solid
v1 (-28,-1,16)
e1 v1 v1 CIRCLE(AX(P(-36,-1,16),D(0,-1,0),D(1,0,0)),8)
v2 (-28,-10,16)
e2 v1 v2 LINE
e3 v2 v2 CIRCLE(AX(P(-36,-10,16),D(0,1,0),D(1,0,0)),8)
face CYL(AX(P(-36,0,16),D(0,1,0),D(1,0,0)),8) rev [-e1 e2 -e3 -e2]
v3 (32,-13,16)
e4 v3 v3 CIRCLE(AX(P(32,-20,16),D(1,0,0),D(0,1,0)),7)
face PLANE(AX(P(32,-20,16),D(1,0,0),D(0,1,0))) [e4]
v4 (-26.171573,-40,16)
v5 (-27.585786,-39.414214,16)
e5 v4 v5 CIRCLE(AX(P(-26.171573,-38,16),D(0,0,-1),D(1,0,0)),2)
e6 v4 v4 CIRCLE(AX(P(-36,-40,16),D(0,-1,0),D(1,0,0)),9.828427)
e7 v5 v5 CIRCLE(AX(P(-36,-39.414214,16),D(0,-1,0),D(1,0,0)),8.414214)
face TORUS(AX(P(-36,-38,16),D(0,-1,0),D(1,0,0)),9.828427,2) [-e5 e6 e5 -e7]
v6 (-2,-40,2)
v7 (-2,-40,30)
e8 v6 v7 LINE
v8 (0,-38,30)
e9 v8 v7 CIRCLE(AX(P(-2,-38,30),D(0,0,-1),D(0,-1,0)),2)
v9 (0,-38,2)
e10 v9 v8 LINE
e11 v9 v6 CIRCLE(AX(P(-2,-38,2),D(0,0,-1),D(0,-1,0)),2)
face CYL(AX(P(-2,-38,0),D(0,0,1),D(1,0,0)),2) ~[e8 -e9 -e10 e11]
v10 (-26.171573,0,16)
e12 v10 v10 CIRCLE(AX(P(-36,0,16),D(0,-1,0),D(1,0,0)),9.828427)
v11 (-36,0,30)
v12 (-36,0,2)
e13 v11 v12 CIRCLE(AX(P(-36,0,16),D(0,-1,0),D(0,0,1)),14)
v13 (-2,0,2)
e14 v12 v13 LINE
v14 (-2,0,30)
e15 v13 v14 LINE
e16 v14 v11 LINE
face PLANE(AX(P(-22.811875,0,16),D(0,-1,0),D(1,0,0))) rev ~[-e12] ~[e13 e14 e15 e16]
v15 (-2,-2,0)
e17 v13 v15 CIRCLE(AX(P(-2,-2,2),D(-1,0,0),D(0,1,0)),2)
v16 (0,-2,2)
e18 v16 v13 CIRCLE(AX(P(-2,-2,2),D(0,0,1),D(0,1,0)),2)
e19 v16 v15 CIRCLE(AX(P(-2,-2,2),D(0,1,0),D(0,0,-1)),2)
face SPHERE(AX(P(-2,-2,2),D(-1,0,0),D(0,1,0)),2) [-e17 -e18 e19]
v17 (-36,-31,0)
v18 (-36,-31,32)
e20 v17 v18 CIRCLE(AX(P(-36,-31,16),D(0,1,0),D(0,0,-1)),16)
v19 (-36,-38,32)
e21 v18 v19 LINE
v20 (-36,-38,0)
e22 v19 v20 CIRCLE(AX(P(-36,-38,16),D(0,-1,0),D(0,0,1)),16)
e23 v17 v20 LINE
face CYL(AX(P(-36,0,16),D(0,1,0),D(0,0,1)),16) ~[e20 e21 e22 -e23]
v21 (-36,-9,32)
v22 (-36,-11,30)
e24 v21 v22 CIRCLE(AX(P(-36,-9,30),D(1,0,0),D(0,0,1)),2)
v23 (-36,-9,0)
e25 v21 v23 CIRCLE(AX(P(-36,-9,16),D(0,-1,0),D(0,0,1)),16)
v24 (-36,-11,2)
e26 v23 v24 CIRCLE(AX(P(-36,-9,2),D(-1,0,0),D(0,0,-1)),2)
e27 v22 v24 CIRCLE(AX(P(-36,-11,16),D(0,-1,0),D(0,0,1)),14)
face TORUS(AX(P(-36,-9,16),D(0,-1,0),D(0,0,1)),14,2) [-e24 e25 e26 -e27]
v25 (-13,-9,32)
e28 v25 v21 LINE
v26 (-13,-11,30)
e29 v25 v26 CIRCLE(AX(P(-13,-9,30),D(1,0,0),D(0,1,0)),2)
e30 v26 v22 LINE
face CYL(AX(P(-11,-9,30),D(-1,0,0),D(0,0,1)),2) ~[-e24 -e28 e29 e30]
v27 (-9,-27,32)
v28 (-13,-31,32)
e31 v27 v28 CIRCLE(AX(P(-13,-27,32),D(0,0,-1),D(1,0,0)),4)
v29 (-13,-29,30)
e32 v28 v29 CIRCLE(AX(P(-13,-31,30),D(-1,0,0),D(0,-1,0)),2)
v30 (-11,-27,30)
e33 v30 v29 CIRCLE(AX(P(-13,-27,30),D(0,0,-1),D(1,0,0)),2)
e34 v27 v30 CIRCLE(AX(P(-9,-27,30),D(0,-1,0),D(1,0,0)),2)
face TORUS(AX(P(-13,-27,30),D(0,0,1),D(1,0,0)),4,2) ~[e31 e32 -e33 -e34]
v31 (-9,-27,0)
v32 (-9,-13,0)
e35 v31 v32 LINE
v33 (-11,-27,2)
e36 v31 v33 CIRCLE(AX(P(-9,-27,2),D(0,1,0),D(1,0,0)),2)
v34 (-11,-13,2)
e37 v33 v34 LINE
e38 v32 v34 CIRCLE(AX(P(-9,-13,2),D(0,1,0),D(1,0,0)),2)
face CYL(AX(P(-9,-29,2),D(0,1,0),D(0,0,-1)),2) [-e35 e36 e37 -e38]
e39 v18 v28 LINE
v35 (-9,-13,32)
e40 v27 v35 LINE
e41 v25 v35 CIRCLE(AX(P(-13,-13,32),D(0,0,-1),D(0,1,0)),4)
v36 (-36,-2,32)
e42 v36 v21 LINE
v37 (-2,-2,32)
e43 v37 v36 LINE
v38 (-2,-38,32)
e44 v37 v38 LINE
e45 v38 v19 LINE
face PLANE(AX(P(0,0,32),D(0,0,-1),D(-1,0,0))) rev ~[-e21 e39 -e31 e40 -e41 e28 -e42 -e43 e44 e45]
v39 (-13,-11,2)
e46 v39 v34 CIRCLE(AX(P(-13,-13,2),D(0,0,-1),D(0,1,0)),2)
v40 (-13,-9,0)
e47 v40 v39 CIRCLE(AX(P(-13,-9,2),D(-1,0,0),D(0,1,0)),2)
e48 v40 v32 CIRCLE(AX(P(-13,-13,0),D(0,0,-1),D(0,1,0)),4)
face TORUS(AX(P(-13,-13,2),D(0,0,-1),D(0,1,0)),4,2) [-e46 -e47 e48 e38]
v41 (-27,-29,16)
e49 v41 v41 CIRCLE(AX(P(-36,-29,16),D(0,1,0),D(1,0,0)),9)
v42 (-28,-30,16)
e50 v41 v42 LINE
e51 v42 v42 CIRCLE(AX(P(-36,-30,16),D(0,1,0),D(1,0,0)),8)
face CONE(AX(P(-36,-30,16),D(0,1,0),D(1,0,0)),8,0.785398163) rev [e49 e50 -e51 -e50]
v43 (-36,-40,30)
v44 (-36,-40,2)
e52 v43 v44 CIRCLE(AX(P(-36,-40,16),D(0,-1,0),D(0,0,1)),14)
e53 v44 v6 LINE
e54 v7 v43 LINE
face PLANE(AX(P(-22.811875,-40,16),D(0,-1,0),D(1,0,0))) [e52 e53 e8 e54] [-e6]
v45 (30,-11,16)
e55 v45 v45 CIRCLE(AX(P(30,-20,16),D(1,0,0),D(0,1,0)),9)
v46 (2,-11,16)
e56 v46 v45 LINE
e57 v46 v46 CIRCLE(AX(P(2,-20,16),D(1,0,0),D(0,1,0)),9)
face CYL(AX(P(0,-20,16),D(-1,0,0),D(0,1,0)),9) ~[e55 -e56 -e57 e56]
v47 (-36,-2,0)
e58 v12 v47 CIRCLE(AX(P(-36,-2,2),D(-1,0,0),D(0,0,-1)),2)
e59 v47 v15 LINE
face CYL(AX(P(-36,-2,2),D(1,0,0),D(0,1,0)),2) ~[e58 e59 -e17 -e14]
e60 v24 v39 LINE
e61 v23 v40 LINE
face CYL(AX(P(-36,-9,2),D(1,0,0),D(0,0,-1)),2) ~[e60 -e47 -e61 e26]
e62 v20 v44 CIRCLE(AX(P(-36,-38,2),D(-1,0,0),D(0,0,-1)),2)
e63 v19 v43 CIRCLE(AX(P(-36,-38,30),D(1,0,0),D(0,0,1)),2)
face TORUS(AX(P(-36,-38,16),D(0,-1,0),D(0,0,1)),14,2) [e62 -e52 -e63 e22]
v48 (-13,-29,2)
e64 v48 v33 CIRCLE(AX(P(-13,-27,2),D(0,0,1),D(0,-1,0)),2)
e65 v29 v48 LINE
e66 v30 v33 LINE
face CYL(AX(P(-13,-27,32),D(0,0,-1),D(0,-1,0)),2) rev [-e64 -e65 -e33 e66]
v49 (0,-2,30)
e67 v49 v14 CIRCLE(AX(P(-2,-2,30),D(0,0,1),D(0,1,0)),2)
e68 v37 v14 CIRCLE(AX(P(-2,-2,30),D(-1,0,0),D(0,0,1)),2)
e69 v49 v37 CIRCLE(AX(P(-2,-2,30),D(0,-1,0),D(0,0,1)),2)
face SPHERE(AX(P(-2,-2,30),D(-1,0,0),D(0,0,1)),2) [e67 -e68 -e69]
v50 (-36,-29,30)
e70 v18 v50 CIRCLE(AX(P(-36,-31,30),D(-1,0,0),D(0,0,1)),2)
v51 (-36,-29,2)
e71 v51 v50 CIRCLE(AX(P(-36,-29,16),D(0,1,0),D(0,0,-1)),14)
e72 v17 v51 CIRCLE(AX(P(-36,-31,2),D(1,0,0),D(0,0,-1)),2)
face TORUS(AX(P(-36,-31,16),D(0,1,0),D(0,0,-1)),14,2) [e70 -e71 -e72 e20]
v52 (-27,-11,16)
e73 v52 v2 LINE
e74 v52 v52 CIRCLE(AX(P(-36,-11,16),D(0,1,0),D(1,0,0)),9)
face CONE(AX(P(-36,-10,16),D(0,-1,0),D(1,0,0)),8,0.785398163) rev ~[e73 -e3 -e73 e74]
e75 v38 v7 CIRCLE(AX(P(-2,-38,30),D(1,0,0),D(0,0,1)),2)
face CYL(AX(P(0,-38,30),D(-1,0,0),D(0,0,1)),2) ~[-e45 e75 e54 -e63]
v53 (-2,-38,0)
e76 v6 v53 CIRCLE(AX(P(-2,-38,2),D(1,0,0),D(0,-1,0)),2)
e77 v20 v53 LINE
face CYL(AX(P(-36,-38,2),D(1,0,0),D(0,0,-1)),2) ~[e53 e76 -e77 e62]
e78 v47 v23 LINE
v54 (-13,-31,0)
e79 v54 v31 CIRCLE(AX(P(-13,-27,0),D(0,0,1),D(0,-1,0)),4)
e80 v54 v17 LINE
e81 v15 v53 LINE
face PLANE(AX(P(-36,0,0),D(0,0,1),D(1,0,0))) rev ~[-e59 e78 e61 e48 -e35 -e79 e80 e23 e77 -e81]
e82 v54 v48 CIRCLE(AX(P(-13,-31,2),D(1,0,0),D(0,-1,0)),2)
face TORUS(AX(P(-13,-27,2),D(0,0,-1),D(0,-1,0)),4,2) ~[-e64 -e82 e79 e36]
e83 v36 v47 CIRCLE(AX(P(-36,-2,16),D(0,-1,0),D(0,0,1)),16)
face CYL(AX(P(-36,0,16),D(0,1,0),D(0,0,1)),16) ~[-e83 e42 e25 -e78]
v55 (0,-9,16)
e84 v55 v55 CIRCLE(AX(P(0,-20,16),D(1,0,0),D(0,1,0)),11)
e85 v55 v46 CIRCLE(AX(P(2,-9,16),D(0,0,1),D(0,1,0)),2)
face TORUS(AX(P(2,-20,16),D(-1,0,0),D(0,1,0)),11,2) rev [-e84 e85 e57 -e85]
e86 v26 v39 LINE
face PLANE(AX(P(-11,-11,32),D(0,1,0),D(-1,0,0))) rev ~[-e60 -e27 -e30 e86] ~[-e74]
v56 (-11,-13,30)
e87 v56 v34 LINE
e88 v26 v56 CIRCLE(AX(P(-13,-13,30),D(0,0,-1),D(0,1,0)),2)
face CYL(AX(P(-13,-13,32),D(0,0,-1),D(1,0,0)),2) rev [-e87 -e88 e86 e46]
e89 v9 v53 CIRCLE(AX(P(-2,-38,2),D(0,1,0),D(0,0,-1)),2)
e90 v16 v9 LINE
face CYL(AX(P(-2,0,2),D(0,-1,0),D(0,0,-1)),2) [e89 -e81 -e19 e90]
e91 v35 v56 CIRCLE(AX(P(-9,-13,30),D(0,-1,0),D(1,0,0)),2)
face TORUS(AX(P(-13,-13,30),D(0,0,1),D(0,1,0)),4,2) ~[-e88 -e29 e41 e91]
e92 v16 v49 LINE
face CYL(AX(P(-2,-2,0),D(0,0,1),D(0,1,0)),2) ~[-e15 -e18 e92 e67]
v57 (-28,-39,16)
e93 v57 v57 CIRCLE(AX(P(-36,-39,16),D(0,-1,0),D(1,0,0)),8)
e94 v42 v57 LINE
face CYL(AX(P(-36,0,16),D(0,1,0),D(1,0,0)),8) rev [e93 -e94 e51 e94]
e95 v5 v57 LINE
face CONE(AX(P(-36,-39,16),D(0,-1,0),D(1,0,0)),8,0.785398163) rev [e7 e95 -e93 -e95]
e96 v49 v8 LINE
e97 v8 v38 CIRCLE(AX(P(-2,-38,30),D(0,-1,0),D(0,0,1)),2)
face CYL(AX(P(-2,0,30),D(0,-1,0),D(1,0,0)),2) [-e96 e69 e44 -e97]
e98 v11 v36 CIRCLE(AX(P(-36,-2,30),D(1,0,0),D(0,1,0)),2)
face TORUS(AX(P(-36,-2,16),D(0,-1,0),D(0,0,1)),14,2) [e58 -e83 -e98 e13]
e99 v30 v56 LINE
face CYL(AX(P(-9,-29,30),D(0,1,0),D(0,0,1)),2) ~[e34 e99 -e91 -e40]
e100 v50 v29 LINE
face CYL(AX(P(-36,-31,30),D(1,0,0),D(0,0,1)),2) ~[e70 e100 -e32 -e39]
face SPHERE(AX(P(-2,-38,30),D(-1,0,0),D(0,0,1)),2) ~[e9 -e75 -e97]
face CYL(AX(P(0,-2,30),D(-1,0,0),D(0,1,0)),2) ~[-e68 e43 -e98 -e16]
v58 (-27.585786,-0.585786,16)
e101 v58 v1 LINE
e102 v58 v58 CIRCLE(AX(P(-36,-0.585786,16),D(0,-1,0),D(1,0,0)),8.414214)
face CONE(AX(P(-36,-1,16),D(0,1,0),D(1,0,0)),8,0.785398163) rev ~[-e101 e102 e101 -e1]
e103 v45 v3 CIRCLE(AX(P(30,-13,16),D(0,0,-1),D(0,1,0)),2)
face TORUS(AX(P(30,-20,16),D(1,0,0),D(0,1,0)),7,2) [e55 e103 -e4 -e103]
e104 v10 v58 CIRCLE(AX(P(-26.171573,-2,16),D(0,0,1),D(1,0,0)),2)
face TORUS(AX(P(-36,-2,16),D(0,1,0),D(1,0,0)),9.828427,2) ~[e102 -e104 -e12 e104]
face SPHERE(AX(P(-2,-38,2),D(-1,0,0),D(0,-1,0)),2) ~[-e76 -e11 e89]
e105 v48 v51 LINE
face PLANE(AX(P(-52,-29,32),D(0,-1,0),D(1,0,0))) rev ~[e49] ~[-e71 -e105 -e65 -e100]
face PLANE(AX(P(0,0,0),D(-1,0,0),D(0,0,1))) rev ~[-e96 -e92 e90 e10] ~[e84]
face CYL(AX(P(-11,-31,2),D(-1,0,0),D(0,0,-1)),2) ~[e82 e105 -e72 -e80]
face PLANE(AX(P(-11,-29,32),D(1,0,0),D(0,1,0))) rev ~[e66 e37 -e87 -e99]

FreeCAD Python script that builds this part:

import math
import FreeCAD as App
import Part
import Sketcher
from FreeCAD import Vector


def edges_at(feature, points):
    """Names of the edges that pass closest to the given points."""
    edges = feature.Shape.Edges
    near = lambda p: min(range(len(edges)), key=lambda i: edges[i].distToShape(Part.Vertex(*p))[0])
    return sorted({f"Edge{near(p) + 1}" for p in points})

doc = App.newDocument("Part")
body = doc.addObject("PartDesign::Body", "Body")

# Sketch on XZ plane
sketch1 = body.newObject("Sketcher::SketchObject", "Sketch")
sketch1.AttachmentSupport = (doc.getObject("XZ_Plane"), [""])
sketch1.MapMode = "FlatFace"
sketch1.addGeometry(Part.LineSegment(Vector(-36, 0, 0), Vector(0, 0, 0)), False)
sketch1.addGeometry(Part.LineSegment(Vector(0, 0, 0), Vector(0, 32, 0)), False)
sketch1.addGeometry(Part.LineSegment(Vector(0, 32, 0), Vector(-36, 32, 0)), False)
sketch1.addGeometry(Part.ArcOfCircle(Part.Circle(Vector(-36, 16, 0), Vector(0, 0, 1), 16), math.radians(90), math.radians(270)), False)
sketch1.addGeometry(Part.Circle(Vector(-36, 16, 0), Vector(0, 0, 1), 8), False)
sketch1.addConstraint(Sketcher.Constraint("Coincident", 0, 2, 1, 1))
sketch1.addConstraint(Sketcher.Constraint("Coincident", 1, 2, 2, 1))
sketch1.addConstraint(Sketcher.Constraint("Tangent", 2, 2, 3, 1))
sketch1.addConstraint(Sketcher.Constraint("Tangent", 3, 2, 0, 1))
sketch1.addConstraint(Sketcher.Constraint("Horizontal", 0))
sketch1.addConstraint(Sketcher.Constraint("Vertical", 1))
sketch1.addConstraint(Sketcher.Constraint("Horizontal", 2))
sketch1.addConstraint(Sketcher.Constraint("Coincident", 0, 2, -1, 1))
sketch1.addConstraint(Sketcher.Constraint("Coincident", 4, 3, 3, 3))
sketch1.addConstraint(Sketcher.Constraint("Diameter", 4, 16.0))
sketch1.addConstraint(Sketcher.Constraint("Radius", 3, 16.0))
sketch1.addConstraint(Sketcher.Constraint("DistanceX", 0, 1, 0, 2, 36.0))
pad1 = body.newObject("PartDesign::Pad", "Pad")
pad1.Profile = sketch1
pad1.Length = 40

# Sketch on XY plane
sketch2 = body.newObject("Sketcher::SketchObject", "Sketch001")
sketch2.AttachmentSupport = (doc.getObject("XY_Plane"), [""])
sketch2.MapMode = "FlatFace"
sketch2.AttachmentOffset = App.Placement(Vector(0, 0, 32), App.Rotation())
sketch2.addGeometry(Part.LineSegment(Vector(-11, -29, 0), Vector(-11, -11, 0)), False)
sketch2.addGeometry(Part.LineSegment(Vector(-11, -11, 0), Vector(-52, -11, 0)), False)
sketch2.addGeometry(Part.LineSegment(Vector(-52, -11, 0), Vector(-52, -29, 0)), False)
sketch2.addGeometry(Part.LineSegment(Vector(-52, -29, 0), Vector(-11, -29, 0)), False)
sketch2.addConstraint(Sketcher.Constraint("Coincident", 0, 2, 1, 1))
sketch2.addConstraint(Sketcher.Constraint("Coincident", 1, 2, 2, 1))
sketch2.addConstraint(Sketcher.Constraint("Coincident", 2, 2, 3, 1))
sketch2.addConstraint(Sketcher.Constraint("Coincident", 3, 2, 0, 1))
sketch2.addConstraint(Sketcher.Constraint("Vertical", 0))
sketch2.addConstraint(Sketcher.Constraint("Horizontal", 1))
sketch2.addConstraint(Sketcher.Constraint("Vertical", 2))
sketch2.addConstraint(Sketcher.Constraint("Horizontal", 3))
sketch2.addConstraint(Sketcher.Constraint("DistanceX", 1, 2, 1, 1, 41.0))
sketch2.addConstraint(Sketcher.Constraint("DistanceY", 0, 1, 0, 2, 18.0))
sketch2.addConstraint(Sketcher.Constraint("DistanceX", 0, 2, -1, 1, 11.0))
sketch2.addConstraint(Sketcher.Constraint("DistanceY", 0, 2, -1, 1, 11.0))
pocket1 = body.newObject("PartDesign::Pocket", "Pocket")
pocket1.Profile = sketch2
pocket1.Type = "ThroughAll"

# Sketch on YZ plane
sketch3 = body.newObject("Sketcher::SketchObject", "Sketch002")
sketch3.AttachmentSupport = (doc.getObject("YZ_Plane"), [""])
sketch3.MapMode = "FlatFace"
sketch3.addGeometry(Part.Circle(Vector(-20, 16, 0), Vector(0, 0, 1), 9), False)
sketch3.addConstraint(Sketcher.Constraint("Diameter", 0, 18.0))
sketch3.addConstraint(Sketcher.Constraint("DistanceX", 0, 3, -1, 1, 20.0))
sketch3.addConstraint(Sketcher.Constraint("DistanceY", -1, 1, 0, 3, 16.0))
pad2 = body.newObject("PartDesign::Pad", "Pad001")
pad2.Profile = sketch3
pad2.Length = 32
doc.recompute()

chamfer = body.newObject("PartDesign::Chamfer", "Chamfer")
chamfer.Base = (pad2, edges_at(pad2, [
    (-44, -40, 16),
    (-44, -29, 16),
    (-44, -11, 16),
    (-44, 0, 16),
]))
chamfer.ChamferType = "Two distances"
chamfer.Size = 1
chamfer.Size2 = 1
doc.recompute()

fillet = body.newObject("PartDesign::Fillet", "Fillet")
fillet.Base = (chamfer, edges_at(chamfer, [
    (-18, 0, 32),
    (-36, -5.5, 32),
    (-23.5, -11, 32),
    (-11, -20, 32),
    (-23.5, -29, 32),
    (-36, -34.5, 32),
    (-18, -40, 32),
    (0, -20, 32),
    (-45, -40, 16),
    (-18, -40, 0),
    (0, -40, 16),
    (-52, -40, 16),
    (-45, 0, 16),
    (-18, 0, 0),
    (0, 0, 16),
    (-52, 0, 16),
    (0, -20, 0),
    (-36, -34.5, 0),
    (-23.5, -29, 0),
    (-11, -20, 0),
    (-23.5, -11, 0),
    (-36, -5.5, 0),
    (32, -29, 16),
    (0, -29, 16),
    (-11, -11, 16),
    (-11, -29, 16),
]))
fillet.Radius = 2

doc.recompute()
